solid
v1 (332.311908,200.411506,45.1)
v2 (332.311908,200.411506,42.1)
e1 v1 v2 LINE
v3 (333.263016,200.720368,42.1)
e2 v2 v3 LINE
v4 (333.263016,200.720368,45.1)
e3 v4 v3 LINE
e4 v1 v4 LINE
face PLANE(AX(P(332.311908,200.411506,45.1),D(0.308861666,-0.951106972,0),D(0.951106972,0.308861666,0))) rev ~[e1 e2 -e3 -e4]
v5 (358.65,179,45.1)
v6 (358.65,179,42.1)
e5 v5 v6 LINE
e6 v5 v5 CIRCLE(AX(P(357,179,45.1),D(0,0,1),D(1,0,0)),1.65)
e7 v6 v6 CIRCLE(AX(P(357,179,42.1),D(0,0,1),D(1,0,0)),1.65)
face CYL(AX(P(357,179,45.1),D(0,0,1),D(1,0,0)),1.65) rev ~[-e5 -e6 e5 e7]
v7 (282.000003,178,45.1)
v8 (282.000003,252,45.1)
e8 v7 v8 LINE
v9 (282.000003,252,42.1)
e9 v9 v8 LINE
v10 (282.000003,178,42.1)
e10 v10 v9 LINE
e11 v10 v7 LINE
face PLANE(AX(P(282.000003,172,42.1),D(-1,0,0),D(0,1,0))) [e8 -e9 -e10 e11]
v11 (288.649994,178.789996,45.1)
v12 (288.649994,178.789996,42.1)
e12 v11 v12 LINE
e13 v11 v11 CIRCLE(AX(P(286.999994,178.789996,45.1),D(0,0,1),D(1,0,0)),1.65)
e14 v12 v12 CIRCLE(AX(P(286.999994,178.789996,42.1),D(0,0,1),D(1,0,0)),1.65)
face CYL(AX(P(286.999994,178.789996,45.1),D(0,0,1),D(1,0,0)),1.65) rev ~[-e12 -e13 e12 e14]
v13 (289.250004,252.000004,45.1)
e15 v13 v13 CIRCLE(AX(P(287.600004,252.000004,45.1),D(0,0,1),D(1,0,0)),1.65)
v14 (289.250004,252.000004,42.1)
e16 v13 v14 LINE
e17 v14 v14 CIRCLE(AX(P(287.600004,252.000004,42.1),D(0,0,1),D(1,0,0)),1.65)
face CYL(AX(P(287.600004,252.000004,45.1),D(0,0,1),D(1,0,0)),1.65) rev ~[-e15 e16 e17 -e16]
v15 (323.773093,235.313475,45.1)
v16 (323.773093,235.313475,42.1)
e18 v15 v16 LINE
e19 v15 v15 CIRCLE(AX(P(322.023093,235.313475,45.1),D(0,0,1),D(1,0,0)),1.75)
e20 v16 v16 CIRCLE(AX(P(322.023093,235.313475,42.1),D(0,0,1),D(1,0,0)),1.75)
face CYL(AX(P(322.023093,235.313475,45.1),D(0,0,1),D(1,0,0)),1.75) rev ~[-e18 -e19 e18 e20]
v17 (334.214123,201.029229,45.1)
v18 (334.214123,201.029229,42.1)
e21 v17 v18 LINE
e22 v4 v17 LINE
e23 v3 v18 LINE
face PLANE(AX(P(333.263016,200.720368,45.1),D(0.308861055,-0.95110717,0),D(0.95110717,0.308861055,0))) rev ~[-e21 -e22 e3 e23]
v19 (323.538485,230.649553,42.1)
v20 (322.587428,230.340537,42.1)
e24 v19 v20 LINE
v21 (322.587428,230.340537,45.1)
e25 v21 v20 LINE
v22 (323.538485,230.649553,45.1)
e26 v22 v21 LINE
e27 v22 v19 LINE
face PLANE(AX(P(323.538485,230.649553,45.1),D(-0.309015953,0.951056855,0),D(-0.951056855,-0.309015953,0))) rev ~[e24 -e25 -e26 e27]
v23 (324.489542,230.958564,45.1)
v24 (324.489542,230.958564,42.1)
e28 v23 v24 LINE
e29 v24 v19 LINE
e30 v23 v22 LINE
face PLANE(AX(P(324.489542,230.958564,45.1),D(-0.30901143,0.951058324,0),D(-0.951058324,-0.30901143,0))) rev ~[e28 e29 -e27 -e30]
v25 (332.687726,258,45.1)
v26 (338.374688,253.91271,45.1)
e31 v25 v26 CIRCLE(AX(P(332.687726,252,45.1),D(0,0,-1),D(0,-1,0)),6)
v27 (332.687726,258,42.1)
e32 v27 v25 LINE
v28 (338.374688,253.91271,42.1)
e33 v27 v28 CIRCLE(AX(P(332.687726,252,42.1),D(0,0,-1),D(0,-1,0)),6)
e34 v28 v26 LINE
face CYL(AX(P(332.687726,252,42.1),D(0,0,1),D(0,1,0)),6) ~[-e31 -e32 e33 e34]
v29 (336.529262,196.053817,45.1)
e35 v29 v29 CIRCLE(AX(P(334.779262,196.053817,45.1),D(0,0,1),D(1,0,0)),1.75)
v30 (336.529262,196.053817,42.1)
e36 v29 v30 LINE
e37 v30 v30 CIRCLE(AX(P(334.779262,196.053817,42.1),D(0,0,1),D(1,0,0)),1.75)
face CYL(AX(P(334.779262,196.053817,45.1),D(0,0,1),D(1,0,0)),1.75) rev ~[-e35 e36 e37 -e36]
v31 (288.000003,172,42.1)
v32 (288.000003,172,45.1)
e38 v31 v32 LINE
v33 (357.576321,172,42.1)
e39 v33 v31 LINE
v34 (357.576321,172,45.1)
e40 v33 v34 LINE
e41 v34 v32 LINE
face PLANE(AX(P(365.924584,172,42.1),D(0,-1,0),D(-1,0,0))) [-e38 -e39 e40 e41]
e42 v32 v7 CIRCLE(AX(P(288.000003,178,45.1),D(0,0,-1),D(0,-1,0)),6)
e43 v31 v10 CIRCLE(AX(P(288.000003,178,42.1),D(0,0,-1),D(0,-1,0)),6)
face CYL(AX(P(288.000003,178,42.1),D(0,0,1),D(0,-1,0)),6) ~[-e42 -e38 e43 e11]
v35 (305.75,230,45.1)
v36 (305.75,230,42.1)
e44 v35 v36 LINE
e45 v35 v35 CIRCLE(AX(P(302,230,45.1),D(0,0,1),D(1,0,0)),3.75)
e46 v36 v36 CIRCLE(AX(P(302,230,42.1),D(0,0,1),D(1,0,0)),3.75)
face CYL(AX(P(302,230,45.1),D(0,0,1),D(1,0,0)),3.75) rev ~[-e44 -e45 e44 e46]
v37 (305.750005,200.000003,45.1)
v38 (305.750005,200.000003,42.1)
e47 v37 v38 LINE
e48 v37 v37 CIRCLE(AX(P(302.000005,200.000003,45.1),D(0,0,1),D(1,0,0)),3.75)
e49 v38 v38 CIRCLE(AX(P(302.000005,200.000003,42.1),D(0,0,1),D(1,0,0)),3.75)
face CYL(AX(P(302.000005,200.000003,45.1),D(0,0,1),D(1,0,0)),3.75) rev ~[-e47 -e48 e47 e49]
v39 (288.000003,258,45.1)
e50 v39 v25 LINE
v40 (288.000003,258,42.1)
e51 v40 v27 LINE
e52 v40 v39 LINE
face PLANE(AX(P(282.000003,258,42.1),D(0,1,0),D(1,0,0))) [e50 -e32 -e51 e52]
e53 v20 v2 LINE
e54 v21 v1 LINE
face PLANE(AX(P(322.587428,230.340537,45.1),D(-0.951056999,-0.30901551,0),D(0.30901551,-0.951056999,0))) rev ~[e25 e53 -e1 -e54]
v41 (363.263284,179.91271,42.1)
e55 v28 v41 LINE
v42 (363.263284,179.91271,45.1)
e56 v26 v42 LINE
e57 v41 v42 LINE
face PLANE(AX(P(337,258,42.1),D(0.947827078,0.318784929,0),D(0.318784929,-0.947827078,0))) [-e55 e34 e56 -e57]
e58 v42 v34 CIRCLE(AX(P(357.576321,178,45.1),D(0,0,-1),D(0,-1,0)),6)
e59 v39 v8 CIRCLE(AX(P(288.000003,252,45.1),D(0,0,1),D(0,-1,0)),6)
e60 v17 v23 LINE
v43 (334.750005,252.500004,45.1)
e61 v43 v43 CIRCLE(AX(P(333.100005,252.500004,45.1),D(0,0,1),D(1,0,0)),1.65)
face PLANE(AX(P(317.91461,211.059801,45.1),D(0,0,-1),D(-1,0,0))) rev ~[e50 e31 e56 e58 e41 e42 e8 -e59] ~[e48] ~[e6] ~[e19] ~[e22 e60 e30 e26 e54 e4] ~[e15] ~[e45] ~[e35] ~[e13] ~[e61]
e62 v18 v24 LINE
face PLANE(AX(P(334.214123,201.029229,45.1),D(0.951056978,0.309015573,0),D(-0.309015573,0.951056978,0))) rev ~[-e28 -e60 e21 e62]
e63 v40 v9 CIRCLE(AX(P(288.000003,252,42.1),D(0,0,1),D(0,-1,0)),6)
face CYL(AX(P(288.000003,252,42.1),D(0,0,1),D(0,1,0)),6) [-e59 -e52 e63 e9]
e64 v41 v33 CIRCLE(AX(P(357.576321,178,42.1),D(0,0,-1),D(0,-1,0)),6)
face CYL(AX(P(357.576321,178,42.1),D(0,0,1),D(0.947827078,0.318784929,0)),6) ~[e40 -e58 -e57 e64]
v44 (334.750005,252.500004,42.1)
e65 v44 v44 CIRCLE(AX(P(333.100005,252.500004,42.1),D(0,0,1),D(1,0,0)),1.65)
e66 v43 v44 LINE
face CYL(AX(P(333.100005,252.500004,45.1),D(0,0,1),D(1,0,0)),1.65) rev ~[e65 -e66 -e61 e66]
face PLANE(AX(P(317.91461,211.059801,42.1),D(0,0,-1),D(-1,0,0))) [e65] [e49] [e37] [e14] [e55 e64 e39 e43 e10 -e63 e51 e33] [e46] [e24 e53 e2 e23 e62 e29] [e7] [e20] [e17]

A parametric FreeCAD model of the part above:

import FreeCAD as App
import Part
import Sketcher
Q = App.Units.Quantity


def edges_at(feature, points):
    """Names of the edges that pass closest to the given points."""
    edges = feature.Shape.Edges
    near = lambda p: min(range(len(edges)), key=lambda i: edges[i].distToShape(Part.Vertex(*p))[0])
    return sorted({f"Edge{near(p) + 1}" for p in points})


def add_polygon(sketch, points):
    """Adds a closed chain of lines whose ends are joined by coincident constraints."""
    first, n = sketch.GeometryCount, len(points)
    for a, b in zip(points, points[1:] + points[:1]):
        sketch.addGeometry(Part.LineSegment(App.Vector(*a, 0), App.Vector(*b, 0)), False)
    for i in range(n):
        sketch.addConstraint(Sketcher.Constraint("Coincident", first + i, 2, first + (i + 1) % n, 1))

doc = App.newDocument("Part")
params = doc.addObject("Spreadsheet::Sheet", "Params")
for row, (alias, value) in enumerate([
    ("sketch1_height", "86 mm"),
    ("pad1_length", "3 mm"),
    ("fillet_radius", "6 mm"),
    ("sketch2_diameter", "7.5 mm"),
    ("pocket1_length", "5 mm"),
    ("sketch3_diameter", "3.5 mm"),
    ("sketch3_length", "1 mm"),
    ("pocket2_length", "3 mm"),
    ("sketch4_diameter", "3.3 mm"),
    ("pocket3_length", "3 mm"),
], start=1):
    params.set(f"A{row}", alias)
    params.set(f"B{row}", "=" + value)
    params.setAlias(f"B{row}", alias)

body = doc.addObject("PartDesign::Body", "Body")

# Sketch on XY plane
sketch1 = doc.addObject("Sketcher::SketchObject", "Sketch")
body.addObject(sketch1)
sketch1.AttachmentSupport = (doc.XY_Plane, [""])
sketch1.MapMode = "FlatFace"
sketch1.AttachmentOffset = App.Placement(App.Vector(0, 0, 45), App.Rotation())
add_polygon(sketch1, [(337, 258), (282, 258), (282, 172), (366, 172)])  # lines 0-3
sketch1.addConstraint([
    Sketcher.Constraint("Horizontal", 0),
    Sketcher.Constraint("Vertical", 1),
    Sketcher.Constraint("Horizontal", 2),
    Sketcher.Constraint("DistanceY", 1, 2, 1, 1, Q("86 mm")),
    Sketcher.Constraint("DistanceY", -1, 1, 0, 2, Q("258 mm")),
    Sketcher.Constraint("DistanceX", -1, 1, 3, 2, Q("337 mm")),
    Sketcher.Constraint("DistanceX", 2, 1, 2, 2, Q("83.924581 mm")),
    Sketcher.Constraint("Distance", 3, Q("90.73385 mm")),
])
sketch1.setExpression("Constraints[7]", "Params.sketch1_height")
pad1 = doc.addObject("PartDesign::Pad", "Pad")
body.addObject(pad1)
pad1.Profile = sketch1
pad1.setExpression("Length", "Params.pad1_length")
doc.recompute()

fillet = doc.addObject("PartDesign::Fillet", "Fillet")
body.addObject(fillet)
fillet.Base = (pad1, edges_at(pad1, [
    (365.925, 172, 46.5),
    (282, 172, 46.5),
    (282, 258, 46.5),
    (337, 258, 46.5),
]))
fillet.setExpression("Radius", "Params.fillet_radius")

# Sketch on XY plane
sketch2 = doc.addObject("Sketcher::SketchObject", "Sketch001")
body.addObject(sketch2)
sketch2.AttachmentSupport = (doc.XY_Plane, [""])
sketch2.MapMode = "FlatFace"
sketch2.AttachmentOffset = App.Placement(App.Vector(0, 0, 48), App.Rotation())
sketch2.addGeometry([
    Part.Circle(App.Vector(302, 230, 0), App.Vector(0, 0, 1), 3.8),
    Part.Circle(App.Vector(302, 200, 0), App.Vector(0, 0, 1), 3.8),
], False)
sketch2.addConstraint([
    Sketcher.Constraint("Equal", 0, 1),
    Sketcher.Constraint("Diameter", 0, Q("7.5 mm")),
    Sketcher.Constraint("DistanceX", -1, 1, 0, 3, Q("302 mm")),
    Sketcher.Constraint("DistanceY", -1, 1, 0, 3, Q("230 mm")),
    Sketcher.Constraint("DistanceX", -1, 1, 1, 3, Q("302.000005 mm")),
    Sketcher.Constraint("DistanceY", -1, 1, 1, 3, Q("200.000003 mm")),
])
sketch2.setExpression("Constraints[1]", "Params.sketch2_diameter")
pocket1 = doc.addObject("PartDesign::Pocket", "Pocket")
body.addObject(pocket1)
pocket1.Profile = sketch2
pocket1.setExpression("Length", "Params.pocket1_length")

# Sketch on XY plane
sketch3 = doc.addObject("Sketcher::SketchObject", "Sketch002")
body.addObject(sketch3)
sketch3.AttachmentSupport = (doc.XY_Plane, [""])
sketch3.MapMode = "FlatFace"
sketch3.AttachmentOffset = App.Placement(App.Vector(0, 0, 48), App.Rotation())
sketch3.addGeometry(Part.Circle(App.Vector(322, 235.3, 0), App.Vector(0, 0, 1), 1.8), False)  # 0
sketch3.addGeometry(Part.Circle(App.Vector(334.8, 196.1, 0), App.Vector(0, 0, 1), 1.8), False)  # 1
add_polygon(sketch3, [(333.3, 200.7), (334.2, 201), (324.5, 231), (323.5, 230.6), (322.6, 230.3), (332.3, 200.4)])  # lines 2-7
sketch3.addConstraint([
    Sketcher.Constraint("Equal", 0, 1),
    Sketcher.Constraint("Perpendicular", 3, 5),
    Sketcher.Constraint("Perpendicular", 5, 6),
    Sketcher.Constraint("Parallel", 2, 7),
    Sketcher.Constraint("Equal", 2, 4),
    Sketcher.Constraint("Equal", 4, 5),
    Sketcher.Constraint("Diameter", 0, Q("3.5 mm")),
    Sketcher.Constraint("Distance", 2, Q("1 mm")),
    Sketcher.Constraint("Distance", 3, Q("31.46955 mm")),
    Sketcher.Constraint("Distance", 6, Q("31.46923 mm")),
    Sketcher.Constraint("DistanceX", -1, 1, 1, 3, Q("334.779262 mm")),
    Sketcher.Constraint("DistanceY", -1, 1, 2, 2, Q("201.029229 mm")),
    Sketcher.Constraint("DistanceX", -1, 1, 3, 2, Q("324.489542 mm")),
    Sketcher.Constraint("DistanceX", -1, 1, 5, 2, Q("322.587428 mm")),
    Sketcher.Constraint("DistanceX", -1, 1, 6, 2, Q("332.311908 mm")),
    Sketcher.Constraint("DistanceX", 0, 3, 1, 3, Q("12.756169 mm")),
    Sketcher.Constraint("DistanceY", 1, 3, 0, 3, Q("39.259658 mm")),
    Sketcher.Constraint("DistanceY", 1, 3, 2, 2, Q("4.975412 mm")),
])
sketch3.setExpression("Constraints[12]", "Params.sketch3_diameter")
sketch3.setExpression("Constraints[13]", "Params.sketch3_length")
pocket2 = doc.addObject("PartDesign::Pocket", "Pocket001")
body.addObject(pocket2)
pocket2.Profile = sketch3
pocket2.setExpression("Length", "Params.pocket2_length")

# Sketch on XY plane
sketch4 = doc.addObject("Sketcher::SketchObject", "Sketch003")
body.addObject(sketch4)
sketch4.AttachmentSupport = (doc.XY_Plane, [""])
sketch4.MapMode = "FlatFace"
sketch4.AttachmentOffset = App.Placement(App.Vector(0, 0, 48), App.Rotation())
sketch4.addGeometry([
    Part.Circle(App.Vector(287, 178.8, 0), App.Vector(0, 0, 1), 1.6),
    Part.Circle(App.Vector(287.6, 252, 0), App.Vector(0, 0, 1), 1.6),
    Part.Circle(App.Vector(333.1, 252.5, 0), App.Vector(0, 0, 1), 1.6),
    Part.Circle(App.Vector(357, 179, 0), App.Vector(0, 0, 1), 1.6),
], False)
sketch4.addConstraint([
    Sketcher.Constraint("Equal", 0, 1),
    Sketcher.Constraint("Equal", 1, 2),
    Sketcher.Constraint("Equal", 2, 3),
    Sketcher.Constraint("Diameter", 0, Q("3.3 mm")),
    Sketcher.Constraint("DistanceX", -1, 1, 3, 3, Q("357 mm")),
    Sketcher.Constraint("DistanceY", -1, 1, 3, 3, Q("179 mm")),
    Sketcher.Constraint("DistanceX", 1, 3, 2, 3, Q("45.500001 mm")),
    Sketcher.Constraint("DistanceY", 1, 3, 2, 3, Q("0.5 mm")),
    Sketcher.Constraint("DistanceX", 0, 3, 1, 3, Q("0.60001 mm")),
    Sketcher.Constraint("DistanceX", -1, 1, 0, 3, Q("286.999994 mm")),
    Sketcher.Constraint("DistanceY", -1, 1, 0, 3, Q("178.789996 mm")),
    Sketcher.Constraint("DistanceY", -1, 1, 1, 3, Q("252.000004 mm")),
])
sketch4.setExpression("Constraints[3]", "Params.sketch4_diameter")
pocket3 = doc.addObject("PartDesign::Pocket", "Pocket002")
body.addObject(pocket3)
pocket3.Profile = sketch4
pocket3.setExpression("Length", "Params.pocket3_length")
body2 = doc.addObject("PartDesign::Body", "Body001")
doc.recompute()

body.Placement = App.Placement(App.Vector(0, 0, -2.9), App.Rotation(App.Vector(0, 0, 1), 0))
boolean = doc.addObject("PartDesign::Boolean", "Boolean")
body2.addObject(boolean)
boolean.Type = "Fuse"
boolean.addObjects([body])

doc.recompute()
